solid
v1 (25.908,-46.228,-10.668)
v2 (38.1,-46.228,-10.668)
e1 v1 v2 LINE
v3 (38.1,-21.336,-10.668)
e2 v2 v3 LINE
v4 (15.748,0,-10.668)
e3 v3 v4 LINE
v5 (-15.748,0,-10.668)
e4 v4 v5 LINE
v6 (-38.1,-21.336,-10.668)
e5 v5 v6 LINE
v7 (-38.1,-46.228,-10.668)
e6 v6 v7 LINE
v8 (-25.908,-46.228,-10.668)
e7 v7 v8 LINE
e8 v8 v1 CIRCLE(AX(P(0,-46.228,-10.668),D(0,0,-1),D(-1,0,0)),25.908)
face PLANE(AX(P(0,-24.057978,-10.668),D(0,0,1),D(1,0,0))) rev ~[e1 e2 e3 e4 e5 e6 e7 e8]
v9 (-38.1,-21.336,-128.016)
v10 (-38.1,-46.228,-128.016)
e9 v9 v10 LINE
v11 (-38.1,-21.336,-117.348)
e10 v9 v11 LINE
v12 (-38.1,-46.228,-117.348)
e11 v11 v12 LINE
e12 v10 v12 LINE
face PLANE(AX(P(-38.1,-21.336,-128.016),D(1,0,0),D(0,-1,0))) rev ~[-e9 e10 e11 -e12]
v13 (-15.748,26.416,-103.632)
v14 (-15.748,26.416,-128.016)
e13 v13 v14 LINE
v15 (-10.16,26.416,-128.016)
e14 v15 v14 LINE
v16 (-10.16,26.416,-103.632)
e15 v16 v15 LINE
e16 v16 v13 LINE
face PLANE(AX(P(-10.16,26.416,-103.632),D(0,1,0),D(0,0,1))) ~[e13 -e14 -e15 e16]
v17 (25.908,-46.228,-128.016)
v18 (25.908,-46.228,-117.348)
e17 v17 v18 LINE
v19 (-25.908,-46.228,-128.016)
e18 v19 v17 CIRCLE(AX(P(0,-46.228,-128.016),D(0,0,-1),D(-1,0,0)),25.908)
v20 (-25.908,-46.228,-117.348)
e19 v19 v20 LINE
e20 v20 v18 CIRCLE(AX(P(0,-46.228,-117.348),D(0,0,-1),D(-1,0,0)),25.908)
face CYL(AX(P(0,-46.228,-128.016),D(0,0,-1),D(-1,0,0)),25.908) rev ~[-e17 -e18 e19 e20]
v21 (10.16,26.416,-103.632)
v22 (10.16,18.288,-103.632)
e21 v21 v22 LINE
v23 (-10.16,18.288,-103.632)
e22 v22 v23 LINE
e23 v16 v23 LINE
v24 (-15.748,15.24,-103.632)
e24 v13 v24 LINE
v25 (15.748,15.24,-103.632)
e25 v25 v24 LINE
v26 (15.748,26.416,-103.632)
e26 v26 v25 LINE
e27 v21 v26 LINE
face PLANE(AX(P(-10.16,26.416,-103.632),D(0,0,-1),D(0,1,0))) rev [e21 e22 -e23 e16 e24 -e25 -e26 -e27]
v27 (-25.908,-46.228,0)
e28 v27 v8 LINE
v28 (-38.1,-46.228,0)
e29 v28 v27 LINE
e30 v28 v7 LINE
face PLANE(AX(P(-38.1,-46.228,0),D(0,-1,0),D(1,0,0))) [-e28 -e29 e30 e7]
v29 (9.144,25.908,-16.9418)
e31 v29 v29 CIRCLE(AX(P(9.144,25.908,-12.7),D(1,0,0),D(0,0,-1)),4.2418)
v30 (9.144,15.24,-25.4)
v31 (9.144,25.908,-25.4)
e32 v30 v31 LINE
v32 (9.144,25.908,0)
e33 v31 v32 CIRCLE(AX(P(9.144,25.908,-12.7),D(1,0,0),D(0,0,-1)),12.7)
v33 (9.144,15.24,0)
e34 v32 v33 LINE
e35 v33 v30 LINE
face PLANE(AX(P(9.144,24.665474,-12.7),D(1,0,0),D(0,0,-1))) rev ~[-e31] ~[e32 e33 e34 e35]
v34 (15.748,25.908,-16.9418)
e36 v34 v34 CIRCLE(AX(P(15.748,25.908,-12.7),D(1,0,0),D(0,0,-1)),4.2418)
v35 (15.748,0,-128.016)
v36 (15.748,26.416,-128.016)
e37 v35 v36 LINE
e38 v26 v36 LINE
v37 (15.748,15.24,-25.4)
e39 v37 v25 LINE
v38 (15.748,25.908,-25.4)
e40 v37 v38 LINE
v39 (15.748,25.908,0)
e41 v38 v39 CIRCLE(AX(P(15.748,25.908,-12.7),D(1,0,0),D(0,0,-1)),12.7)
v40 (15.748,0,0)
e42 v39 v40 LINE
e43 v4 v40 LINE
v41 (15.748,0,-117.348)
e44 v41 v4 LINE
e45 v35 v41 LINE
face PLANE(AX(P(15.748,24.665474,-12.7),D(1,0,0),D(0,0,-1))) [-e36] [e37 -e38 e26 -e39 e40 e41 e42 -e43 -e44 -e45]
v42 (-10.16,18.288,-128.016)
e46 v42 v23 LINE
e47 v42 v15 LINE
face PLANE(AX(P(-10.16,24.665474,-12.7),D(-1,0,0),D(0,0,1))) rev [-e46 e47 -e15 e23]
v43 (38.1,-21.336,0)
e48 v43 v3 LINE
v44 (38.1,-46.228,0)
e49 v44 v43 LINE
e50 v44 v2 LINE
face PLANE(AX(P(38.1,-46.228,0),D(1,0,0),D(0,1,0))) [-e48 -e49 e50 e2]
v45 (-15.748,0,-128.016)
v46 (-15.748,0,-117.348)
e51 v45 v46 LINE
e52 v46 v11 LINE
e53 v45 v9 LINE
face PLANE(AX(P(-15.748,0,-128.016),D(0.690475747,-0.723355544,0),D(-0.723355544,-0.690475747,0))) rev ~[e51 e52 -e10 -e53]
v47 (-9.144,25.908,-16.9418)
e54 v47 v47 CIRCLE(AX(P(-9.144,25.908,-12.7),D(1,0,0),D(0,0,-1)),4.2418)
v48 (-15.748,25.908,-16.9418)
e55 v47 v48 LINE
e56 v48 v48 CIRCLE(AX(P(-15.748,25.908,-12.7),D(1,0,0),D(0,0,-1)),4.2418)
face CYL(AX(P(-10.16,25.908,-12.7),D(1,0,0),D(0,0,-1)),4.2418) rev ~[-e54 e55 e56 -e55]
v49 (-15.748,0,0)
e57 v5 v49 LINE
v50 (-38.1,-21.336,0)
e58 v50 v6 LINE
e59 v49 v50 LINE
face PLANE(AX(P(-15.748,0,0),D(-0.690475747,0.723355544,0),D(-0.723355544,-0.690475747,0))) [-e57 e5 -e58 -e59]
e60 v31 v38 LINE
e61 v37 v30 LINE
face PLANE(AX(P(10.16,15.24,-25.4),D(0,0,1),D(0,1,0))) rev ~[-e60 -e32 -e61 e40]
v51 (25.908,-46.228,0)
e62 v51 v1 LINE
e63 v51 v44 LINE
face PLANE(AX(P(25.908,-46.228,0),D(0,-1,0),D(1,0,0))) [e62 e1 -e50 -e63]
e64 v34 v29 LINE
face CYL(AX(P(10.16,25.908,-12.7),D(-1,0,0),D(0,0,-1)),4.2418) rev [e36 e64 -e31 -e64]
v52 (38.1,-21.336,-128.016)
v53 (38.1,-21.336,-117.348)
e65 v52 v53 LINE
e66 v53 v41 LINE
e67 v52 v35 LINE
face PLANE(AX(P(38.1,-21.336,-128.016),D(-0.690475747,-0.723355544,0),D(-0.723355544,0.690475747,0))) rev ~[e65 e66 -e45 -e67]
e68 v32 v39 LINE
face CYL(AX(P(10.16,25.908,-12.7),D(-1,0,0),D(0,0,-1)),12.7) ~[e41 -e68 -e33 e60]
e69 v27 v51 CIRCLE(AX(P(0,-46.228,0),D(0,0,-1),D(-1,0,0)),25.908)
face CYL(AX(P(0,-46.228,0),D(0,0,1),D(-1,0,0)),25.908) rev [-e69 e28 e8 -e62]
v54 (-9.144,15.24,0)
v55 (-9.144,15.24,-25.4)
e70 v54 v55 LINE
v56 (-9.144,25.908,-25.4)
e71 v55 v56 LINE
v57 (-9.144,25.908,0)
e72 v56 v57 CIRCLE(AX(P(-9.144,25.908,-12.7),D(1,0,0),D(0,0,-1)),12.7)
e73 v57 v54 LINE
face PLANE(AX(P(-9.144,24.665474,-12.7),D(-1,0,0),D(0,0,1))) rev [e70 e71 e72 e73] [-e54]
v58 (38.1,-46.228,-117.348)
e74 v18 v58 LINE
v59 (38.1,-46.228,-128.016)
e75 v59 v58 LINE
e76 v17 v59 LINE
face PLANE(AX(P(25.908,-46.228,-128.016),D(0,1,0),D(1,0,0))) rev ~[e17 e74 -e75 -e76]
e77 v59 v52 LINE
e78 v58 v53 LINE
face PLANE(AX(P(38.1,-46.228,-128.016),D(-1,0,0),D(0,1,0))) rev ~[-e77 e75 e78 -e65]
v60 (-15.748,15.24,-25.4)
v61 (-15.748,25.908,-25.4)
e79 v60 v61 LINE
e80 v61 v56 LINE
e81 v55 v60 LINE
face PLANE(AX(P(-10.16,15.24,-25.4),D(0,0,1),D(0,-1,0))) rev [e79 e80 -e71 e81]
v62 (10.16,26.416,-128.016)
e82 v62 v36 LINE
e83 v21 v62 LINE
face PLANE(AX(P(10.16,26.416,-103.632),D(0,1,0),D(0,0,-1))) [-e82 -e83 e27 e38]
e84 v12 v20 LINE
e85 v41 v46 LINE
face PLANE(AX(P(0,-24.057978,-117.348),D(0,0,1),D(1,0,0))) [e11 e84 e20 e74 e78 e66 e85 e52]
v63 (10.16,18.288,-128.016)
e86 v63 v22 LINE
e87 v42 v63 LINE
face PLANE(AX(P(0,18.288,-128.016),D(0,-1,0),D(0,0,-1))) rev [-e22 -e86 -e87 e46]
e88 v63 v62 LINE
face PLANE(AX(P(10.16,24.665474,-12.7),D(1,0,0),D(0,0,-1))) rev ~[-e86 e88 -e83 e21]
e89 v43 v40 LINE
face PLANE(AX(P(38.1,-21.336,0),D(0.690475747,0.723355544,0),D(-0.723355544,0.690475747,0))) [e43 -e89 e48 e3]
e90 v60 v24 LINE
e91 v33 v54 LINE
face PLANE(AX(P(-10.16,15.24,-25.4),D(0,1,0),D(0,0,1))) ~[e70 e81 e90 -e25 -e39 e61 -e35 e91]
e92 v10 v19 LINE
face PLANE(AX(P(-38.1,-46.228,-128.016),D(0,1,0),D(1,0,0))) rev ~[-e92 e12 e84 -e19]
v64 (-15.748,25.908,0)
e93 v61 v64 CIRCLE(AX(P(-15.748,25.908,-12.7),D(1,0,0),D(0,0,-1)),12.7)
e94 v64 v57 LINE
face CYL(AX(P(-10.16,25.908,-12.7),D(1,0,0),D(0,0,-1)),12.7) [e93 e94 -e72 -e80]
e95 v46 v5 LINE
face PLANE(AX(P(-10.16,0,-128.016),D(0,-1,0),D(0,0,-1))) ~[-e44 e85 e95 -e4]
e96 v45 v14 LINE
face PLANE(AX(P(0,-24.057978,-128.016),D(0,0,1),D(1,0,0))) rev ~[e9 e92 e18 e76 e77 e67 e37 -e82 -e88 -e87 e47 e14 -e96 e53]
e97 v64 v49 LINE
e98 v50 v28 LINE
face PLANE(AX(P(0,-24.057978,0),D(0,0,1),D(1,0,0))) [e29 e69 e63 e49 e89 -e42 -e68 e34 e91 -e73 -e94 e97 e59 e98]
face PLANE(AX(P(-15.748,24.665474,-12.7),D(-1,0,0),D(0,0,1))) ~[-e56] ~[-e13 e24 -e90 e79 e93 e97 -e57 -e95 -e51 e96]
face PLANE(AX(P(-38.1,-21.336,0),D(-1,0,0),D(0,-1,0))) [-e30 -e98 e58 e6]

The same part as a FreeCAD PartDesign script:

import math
import FreeCAD as App
import Part
import Sketcher

V = App.Vector
Q = App.Units.Quantity


def add_polygon(sketch, points):
    """Adds a closed chain of lines whose ends are joined by coincident constraints."""
    first, n = sketch.GeometryCount, len(points)
    for a, b in zip(points, points[1:] + points[:1]):
        sketch.addGeometry(Part.LineSegment(App.Vector(*a, 0), App.Vector(*b, 0)), False)
    for i in range(n):
        sketch.addConstraint(Sketcher.Constraint("Coincident", first + i, 2, first + (i + 1) % n, 1))

doc = App.newDocument("Part")
body = doc.addObject("PartDesign::Body", "Body")

sketch1 = body.newObject("Sketcher::SketchObject", "Sketch")
sketch1.AttachmentSupport = (doc.getObject("YZ_Plane"), [""])
sketch1.MapMode = "FlatFace"
add_polygon(sketch1, [(15.2, 0), (0, 0), (0, -128), (18.3, -128), (18.3, -103.6), (15.2, -103.6)])
sketch1.addConstraint([
    Sketcher.Constraint("Horizontal", 0),
    Sketcher.Constraint("Vertical", 1),
    Sketcher.Constraint("Horizontal", 2),
    Sketcher.Constraint("Vertical", 3),
    Sketcher.Constraint("Horizontal", 4),
    Sketcher.Constraint("Vertical", 5),
    Sketcher.Constraint("Coincident", 0, 2, -1, 1),
    Sketcher.Constraint("DistanceX", 0, 2, 0, 1, Q("0.6 in")),
    Sketcher.Constraint("DistanceX", 2, 1, 2, 2, Q("0.72 in")),
    Sketcher.Constraint("DistanceY", 1, 2, 1, 1, Q("5.04 in")),
    Sketcher.Constraint("DistanceY", 3, 1, 3, 2, Q("0.96 in")),
])
pad1 = body.newObject("PartDesign::Pad", "Pad")
pad1.Profile = sketch1
pad1.Length = Q("0.4 in")

sketch2 = body.newObject("Sketcher::SketchObject", "Sketch001")
sketch2.AttachmentSupport = (doc.getObject("YZ_Plane"), [""])
sketch2.MapMode = "FlatFace"
sketch2.AttachmentOffset = App.Placement(V(0, 0, 0.36 * 25.4), App.Rotation())
sketch2.addGeometry([
    Part.LineSegment(V(25.9, 0, 0), V(15.2, 0, 0)),
    Part.LineSegment(V(15.2, 0, 0), V(15.2, -25.4, 0)),
    Part.LineSegment(V(15.2, -25.4, 0), V(25.9, -25.4, 0)),
    Part.ArcOfCircle(Part.Circle(V(25.9, -12.7, 0), V(0, 0, 1), 12.7), math.radians(-90), math.radians(90)),
    Part.Circle(V(25.9, -12.7, 0), V(0, 0, 1), 4.2),
], False)
sketch2.addConstraint([
    Sketcher.Constraint("Coincident", 0, 2, 1, 1),
    Sketcher.Constraint("Coincident", 1, 2, 2, 1),
    Sketcher.Constraint("Tangent", 2, 2, 3, 1),
    Sketcher.Constraint("Tangent", 3, 2, 0, 1),
    Sketcher.Constraint("Horizontal", 0),
    Sketcher.Constraint("Vertical", 1),
    Sketcher.Constraint("Horizontal", 2),
    Sketcher.Constraint("Coincident", 4, 3, 3, 3),
    Sketcher.Constraint("PointOnObject", 0, 2, -1),
    Sketcher.Constraint("Radius", 3, Q("0.5 in")),
    Sketcher.Constraint("Diameter", 4, Q("0.334 in")),
    Sketcher.Constraint("DistanceX", 0, 2, 0, 1, Q("0.42 in")),
    Sketcher.Constraint("DistanceX", -1, 1, 0, 2, Q("0.6 in")),
])
pad2 = body.newObject("PartDesign::Pad", "Pad001")
pad2.Profile = sketch2
pad2.Length = Q("0.04 in")

sketch3 = body.newObject("Sketcher::SketchObject", "Sketch002")
sketch3.AttachmentSupport = (doc.getObject("YZ_Plane"), [""])
sketch3.MapMode = "FlatFace"
sketch3.AttachmentOffset = App.Placement(V(0, 0, 0.4 * 25.4), App.Rotation())
sketch3.addGeometry([
    Part.LineSegment(V(15.2, -25.4, 0), V(25.9, -25.4, 0)),
    Part.ArcOfCircle(Part.Circle(V(25.9, -12.7, 0), V(0, 0, 1), 12.7), math.radians(-90), math.radians(90)),
    Part.LineSegment(V(25.9, 0, 0), V(0, 0, 0)),
    Part.LineSegment(V(0, 0, 0), V(0, -128, 0)),
    Part.LineSegment(V(0, -128, 0), V(26.4, -128, 0)),
    Part.LineSegment(V(26.4, -128, 0), V(26.4, -103.6, 0)),
    Part.LineSegment(V(26.4, -103.6, 0), V(15.2, -103.6, 0)),
    Part.LineSegment(V(15.2, -103.6, 0), V(15.2, -25.4, 0)),
    Part.Circle(V(25.9, -12.7, 0), V(0, 0, 1), 4.2),
], False)
sketch3.addConstraint([
    Sketcher.Constraint("Tangent", 0, 2, 1, 1),
    Sketcher.Constraint("Tangent", 1, 2, 2, 1),
    Sketcher.Constraint("Coincident", 2, 2, 3, 1),
    Sketcher.Constraint("Coincident", 3, 2, 4, 1),
    Sketcher.Constraint("Coincident", 4, 2, 5, 1),
    Sketcher.Constraint("Coincident", 5, 2, 6, 1),
    Sketcher.Constraint("Coincident", 6, 2, 7, 1),
    Sketcher.Constraint("Coincident", 7, 2, 0, 1),
    Sketcher.Constraint("Horizontal", 0),
    Sketcher.Constraint("Horizontal", 2),
    Sketcher.Constraint("Vertical", 3),
    Sketcher.Constraint("Horizontal", 4),
    Sketcher.Constraint("Vertical", 5),
    Sketcher.Constraint("Horizontal", 6),
    Sketcher.Constraint("Vertical", 7),
    Sketcher.Constraint("Coincident", 2, 2, -1, 1),
    Sketcher.Constraint("Coincident", 8, 3, 1, 3),
    Sketcher.Constraint("Radius", 1, Q("0.5 in")),
    Sketcher.Constraint("Diameter", 8, Q("0.334 in")),
    Sketcher.Constraint("DistanceX", 0, 1, 0, 2, Q("0.42 in")),
    Sketcher.Constraint("DistanceX", 2, 2, 2, 1, Q("1.02 in")),
    Sketcher.Constraint("DistanceX", 4, 1, 4, 2, Q("1.04 in")),
    Sketcher.Constraint("DistanceY", 3, 2, 3, 1, Q("5.04 in")),
    Sketcher.Constraint("DistanceY", 5, 1, 5, 2, Q("0.96 in")),
])
pad3 = body.newObject("PartDesign::Pad", "Pad002")
pad3.Profile = sketch3
pad3.Length = Q("0.22 in")
doc.recompute()

mirrored = body.newObject("PartDesign::Mirrored", "Mirrored")
mirrored.Originals = [pad1, pad2, pad3]
mirrored.MirrorPlane = (doc.getObject("YZ_Plane"), [""])
body.Tip = mirrored

sketch4 = body.newObject("Sketcher::SketchObject", "Sketch003")
sketch4.AttachmentSupport = (doc.getObject("XY_Plane"), [""])
sketch4.MapMode = "FlatFace"
sketch4.addGeometry([
    Part.LineSegment(V(26, -46, 0), V(38, -46, 0)),
    Part.LineSegment(V(38, -46, 0), V(38, -21, 0)),
    Part.LineSegment(V(38, -21, 0), V(16, 0, 0)),
    Part.LineSegment(V(16, 0, 0), V(-16, 0, 0)),
    Part.LineSegment(V(-16, 0, 0), V(-38, -21, 0)),
    Part.LineSegment(V(-38, -21, 0), V(-38, -46, 0)),
    Part.LineSegment(V(-38, -46, 0), V(-26, -46, 0)),
    Part.ArcOfCircle(Part.Circle(V(0, -46, 0), V(0, 0, 1), 26), math.radians(0), math.radians(180)),
], False)
sketch4.addConstraint([
    Sketcher.Constraint("Coincident", 0, 2, 1, 1),
    Sketcher.Constraint("Coincident", 1, 2, 2, 1),
    Sketcher.Constraint("Coincident", 2, 2, 3, 1),
    Sketcher.Constraint("Coincident", 3, 2, 4, 1),
    Sketcher.Constraint("Coincident", 4, 2, 5, 1),
    Sketcher.Constraint("Coincident", 5, 2, 6, 1),
    Sketcher.Constraint("Coincident", 6, 2, 7, 2),
    Sketcher.Constraint("Coincident", 7, 1, 0, 1),
    Sketcher.Constraint("Horizontal", 0),
    Sketcher.Constraint("Vertical", 1),
    Sketcher.Constraint("Horizontal", 3),
    Sketcher.Constraint("Vertical", 5),
    Sketcher.Constraint("Horizontal", 6),
    Sketcher.Constraint("Symmetric", 2, 2, 3, 2, -1, 1),
    Sketcher.Constraint("Symmetric", 1, 2, 4, 2, -2),
    Sketcher.Constraint("Symmetric", 6, 2, 7, 1, -2),
    Sketcher.Constraint("Horizontal", 7, 3, 0, 2),
    Sketcher.Constraint("Radius", 7, Q("1.02 in")),
    Sketcher.Constraint("DistanceX", 4, 2, 1, 2, Q("3 in")),
    Sketcher.Constraint("DistanceX", 3, 2, 3, 1, Q("1.24 in")),
    Sketcher.Constraint("DistanceY", 1, 1, 1, 2, Q("0.98 in")),
    Sketcher.Constraint("DistanceY", 7, 3, -1, 1, Q("1.82 in")),
])
pad4 = body.newObject("PartDesign::Pad", "Pad003")
pad4.Profile = sketch4
pad4.Length = Q("0.42 in")
pad4.Reversed = True

sketch5 = body.newObject("Sketcher::SketchObject", "Sketch004")
sketch5.AttachmentSupport = (doc.getObject("XY_Plane"), [""])
sketch5.MapMode = "FlatFace"
sketch5.AttachmentOffset = App.Placement(V(0, 0, -5.04 * 25.4), App.Rotation())
sketch5.addGeometry([
    Part.ArcOfCircle(Part.Circle(V(0, -46, 0), V(0, 0, 1), 26), math.radians(0), math.radians(180)),
    Part.LineSegment(V(26, -46, 0), V(38, -46, 0)),
    Part.LineSegment(V(38, -46, 0), V(38, -21, 0)),
    Part.LineSegment(V(38, -21, 0), V(16, 0, 0)),
    Part.LineSegment(V(16, 0, 0), V(-16, 0, 0)),
    Part.LineSegment(V(-16, 0, 0), V(-38, -21, 0)),
    Part.LineSegment(V(-38, -21, 0), V(-38, -46, 0)),
    Part.LineSegment(V(-38, -46, 0), V(-26, -46, 0)),
], False)
sketch5.addConstraint([
    Sketcher.Constraint("Coincident", 0, 1, 1, 1),
    Sketcher.Constraint("Coincident", 1, 2, 2, 1),
    Sketcher.Constraint("Coincident", 2, 2, 3, 1),
    Sketcher.Constraint("Coincident", 3, 2, 4, 1),
    Sketcher.Constraint("Coincident", 4, 2, 5, 1),
    Sketcher.Constraint("Coincident", 5, 2, 6, 1),
    Sketcher.Constraint("Coincident", 6, 2, 7, 1),
    Sketcher.Constraint("Coincident", 7, 2, 0, 2),
    Sketcher.Constraint("Horizontal", 1),
    Sketcher.Constraint("Vertical", 2),
    Sketcher.Constraint("Horizontal", 4),
    Sketcher.Constraint("Vertical", 6),
    Sketcher.Constraint("Horizontal", 7),
    Sketcher.Constraint("Symmetric", 3, 2, 4, 2, -1, 1),
    Sketcher.Constraint("Symmetric", 2, 2, 5, 2, -2),
    Sketcher.Constraint("Symmetric", 0, 1, 7, 2, -2),
    Sketcher.Constraint("Radius", 0, Q("1.02 in")),
    Sketcher.Constraint("DistanceX", 5, 2, 2, 2, Q("3 in")),
    Sketcher.Constraint("DistanceX", 4, 2, 4, 1, Q("1.24 in")),
    Sketcher.Constraint("DistanceY", 2, 1, 2, 2, Q("0.98 in")),
    Sketcher.Constraint("DistanceY", 0, 3, -1, 1, Q("1.82 in")),
    Sketcher.Constraint("DistanceY", 0, 1, -1, 1, Q("1.82 in")),
])
pad5 = body.newObject("PartDesign::Pad", "Pad004")
pad5.Profile = sketch5
pad5.Length = Q("0.42 in")

doc.recompute()
